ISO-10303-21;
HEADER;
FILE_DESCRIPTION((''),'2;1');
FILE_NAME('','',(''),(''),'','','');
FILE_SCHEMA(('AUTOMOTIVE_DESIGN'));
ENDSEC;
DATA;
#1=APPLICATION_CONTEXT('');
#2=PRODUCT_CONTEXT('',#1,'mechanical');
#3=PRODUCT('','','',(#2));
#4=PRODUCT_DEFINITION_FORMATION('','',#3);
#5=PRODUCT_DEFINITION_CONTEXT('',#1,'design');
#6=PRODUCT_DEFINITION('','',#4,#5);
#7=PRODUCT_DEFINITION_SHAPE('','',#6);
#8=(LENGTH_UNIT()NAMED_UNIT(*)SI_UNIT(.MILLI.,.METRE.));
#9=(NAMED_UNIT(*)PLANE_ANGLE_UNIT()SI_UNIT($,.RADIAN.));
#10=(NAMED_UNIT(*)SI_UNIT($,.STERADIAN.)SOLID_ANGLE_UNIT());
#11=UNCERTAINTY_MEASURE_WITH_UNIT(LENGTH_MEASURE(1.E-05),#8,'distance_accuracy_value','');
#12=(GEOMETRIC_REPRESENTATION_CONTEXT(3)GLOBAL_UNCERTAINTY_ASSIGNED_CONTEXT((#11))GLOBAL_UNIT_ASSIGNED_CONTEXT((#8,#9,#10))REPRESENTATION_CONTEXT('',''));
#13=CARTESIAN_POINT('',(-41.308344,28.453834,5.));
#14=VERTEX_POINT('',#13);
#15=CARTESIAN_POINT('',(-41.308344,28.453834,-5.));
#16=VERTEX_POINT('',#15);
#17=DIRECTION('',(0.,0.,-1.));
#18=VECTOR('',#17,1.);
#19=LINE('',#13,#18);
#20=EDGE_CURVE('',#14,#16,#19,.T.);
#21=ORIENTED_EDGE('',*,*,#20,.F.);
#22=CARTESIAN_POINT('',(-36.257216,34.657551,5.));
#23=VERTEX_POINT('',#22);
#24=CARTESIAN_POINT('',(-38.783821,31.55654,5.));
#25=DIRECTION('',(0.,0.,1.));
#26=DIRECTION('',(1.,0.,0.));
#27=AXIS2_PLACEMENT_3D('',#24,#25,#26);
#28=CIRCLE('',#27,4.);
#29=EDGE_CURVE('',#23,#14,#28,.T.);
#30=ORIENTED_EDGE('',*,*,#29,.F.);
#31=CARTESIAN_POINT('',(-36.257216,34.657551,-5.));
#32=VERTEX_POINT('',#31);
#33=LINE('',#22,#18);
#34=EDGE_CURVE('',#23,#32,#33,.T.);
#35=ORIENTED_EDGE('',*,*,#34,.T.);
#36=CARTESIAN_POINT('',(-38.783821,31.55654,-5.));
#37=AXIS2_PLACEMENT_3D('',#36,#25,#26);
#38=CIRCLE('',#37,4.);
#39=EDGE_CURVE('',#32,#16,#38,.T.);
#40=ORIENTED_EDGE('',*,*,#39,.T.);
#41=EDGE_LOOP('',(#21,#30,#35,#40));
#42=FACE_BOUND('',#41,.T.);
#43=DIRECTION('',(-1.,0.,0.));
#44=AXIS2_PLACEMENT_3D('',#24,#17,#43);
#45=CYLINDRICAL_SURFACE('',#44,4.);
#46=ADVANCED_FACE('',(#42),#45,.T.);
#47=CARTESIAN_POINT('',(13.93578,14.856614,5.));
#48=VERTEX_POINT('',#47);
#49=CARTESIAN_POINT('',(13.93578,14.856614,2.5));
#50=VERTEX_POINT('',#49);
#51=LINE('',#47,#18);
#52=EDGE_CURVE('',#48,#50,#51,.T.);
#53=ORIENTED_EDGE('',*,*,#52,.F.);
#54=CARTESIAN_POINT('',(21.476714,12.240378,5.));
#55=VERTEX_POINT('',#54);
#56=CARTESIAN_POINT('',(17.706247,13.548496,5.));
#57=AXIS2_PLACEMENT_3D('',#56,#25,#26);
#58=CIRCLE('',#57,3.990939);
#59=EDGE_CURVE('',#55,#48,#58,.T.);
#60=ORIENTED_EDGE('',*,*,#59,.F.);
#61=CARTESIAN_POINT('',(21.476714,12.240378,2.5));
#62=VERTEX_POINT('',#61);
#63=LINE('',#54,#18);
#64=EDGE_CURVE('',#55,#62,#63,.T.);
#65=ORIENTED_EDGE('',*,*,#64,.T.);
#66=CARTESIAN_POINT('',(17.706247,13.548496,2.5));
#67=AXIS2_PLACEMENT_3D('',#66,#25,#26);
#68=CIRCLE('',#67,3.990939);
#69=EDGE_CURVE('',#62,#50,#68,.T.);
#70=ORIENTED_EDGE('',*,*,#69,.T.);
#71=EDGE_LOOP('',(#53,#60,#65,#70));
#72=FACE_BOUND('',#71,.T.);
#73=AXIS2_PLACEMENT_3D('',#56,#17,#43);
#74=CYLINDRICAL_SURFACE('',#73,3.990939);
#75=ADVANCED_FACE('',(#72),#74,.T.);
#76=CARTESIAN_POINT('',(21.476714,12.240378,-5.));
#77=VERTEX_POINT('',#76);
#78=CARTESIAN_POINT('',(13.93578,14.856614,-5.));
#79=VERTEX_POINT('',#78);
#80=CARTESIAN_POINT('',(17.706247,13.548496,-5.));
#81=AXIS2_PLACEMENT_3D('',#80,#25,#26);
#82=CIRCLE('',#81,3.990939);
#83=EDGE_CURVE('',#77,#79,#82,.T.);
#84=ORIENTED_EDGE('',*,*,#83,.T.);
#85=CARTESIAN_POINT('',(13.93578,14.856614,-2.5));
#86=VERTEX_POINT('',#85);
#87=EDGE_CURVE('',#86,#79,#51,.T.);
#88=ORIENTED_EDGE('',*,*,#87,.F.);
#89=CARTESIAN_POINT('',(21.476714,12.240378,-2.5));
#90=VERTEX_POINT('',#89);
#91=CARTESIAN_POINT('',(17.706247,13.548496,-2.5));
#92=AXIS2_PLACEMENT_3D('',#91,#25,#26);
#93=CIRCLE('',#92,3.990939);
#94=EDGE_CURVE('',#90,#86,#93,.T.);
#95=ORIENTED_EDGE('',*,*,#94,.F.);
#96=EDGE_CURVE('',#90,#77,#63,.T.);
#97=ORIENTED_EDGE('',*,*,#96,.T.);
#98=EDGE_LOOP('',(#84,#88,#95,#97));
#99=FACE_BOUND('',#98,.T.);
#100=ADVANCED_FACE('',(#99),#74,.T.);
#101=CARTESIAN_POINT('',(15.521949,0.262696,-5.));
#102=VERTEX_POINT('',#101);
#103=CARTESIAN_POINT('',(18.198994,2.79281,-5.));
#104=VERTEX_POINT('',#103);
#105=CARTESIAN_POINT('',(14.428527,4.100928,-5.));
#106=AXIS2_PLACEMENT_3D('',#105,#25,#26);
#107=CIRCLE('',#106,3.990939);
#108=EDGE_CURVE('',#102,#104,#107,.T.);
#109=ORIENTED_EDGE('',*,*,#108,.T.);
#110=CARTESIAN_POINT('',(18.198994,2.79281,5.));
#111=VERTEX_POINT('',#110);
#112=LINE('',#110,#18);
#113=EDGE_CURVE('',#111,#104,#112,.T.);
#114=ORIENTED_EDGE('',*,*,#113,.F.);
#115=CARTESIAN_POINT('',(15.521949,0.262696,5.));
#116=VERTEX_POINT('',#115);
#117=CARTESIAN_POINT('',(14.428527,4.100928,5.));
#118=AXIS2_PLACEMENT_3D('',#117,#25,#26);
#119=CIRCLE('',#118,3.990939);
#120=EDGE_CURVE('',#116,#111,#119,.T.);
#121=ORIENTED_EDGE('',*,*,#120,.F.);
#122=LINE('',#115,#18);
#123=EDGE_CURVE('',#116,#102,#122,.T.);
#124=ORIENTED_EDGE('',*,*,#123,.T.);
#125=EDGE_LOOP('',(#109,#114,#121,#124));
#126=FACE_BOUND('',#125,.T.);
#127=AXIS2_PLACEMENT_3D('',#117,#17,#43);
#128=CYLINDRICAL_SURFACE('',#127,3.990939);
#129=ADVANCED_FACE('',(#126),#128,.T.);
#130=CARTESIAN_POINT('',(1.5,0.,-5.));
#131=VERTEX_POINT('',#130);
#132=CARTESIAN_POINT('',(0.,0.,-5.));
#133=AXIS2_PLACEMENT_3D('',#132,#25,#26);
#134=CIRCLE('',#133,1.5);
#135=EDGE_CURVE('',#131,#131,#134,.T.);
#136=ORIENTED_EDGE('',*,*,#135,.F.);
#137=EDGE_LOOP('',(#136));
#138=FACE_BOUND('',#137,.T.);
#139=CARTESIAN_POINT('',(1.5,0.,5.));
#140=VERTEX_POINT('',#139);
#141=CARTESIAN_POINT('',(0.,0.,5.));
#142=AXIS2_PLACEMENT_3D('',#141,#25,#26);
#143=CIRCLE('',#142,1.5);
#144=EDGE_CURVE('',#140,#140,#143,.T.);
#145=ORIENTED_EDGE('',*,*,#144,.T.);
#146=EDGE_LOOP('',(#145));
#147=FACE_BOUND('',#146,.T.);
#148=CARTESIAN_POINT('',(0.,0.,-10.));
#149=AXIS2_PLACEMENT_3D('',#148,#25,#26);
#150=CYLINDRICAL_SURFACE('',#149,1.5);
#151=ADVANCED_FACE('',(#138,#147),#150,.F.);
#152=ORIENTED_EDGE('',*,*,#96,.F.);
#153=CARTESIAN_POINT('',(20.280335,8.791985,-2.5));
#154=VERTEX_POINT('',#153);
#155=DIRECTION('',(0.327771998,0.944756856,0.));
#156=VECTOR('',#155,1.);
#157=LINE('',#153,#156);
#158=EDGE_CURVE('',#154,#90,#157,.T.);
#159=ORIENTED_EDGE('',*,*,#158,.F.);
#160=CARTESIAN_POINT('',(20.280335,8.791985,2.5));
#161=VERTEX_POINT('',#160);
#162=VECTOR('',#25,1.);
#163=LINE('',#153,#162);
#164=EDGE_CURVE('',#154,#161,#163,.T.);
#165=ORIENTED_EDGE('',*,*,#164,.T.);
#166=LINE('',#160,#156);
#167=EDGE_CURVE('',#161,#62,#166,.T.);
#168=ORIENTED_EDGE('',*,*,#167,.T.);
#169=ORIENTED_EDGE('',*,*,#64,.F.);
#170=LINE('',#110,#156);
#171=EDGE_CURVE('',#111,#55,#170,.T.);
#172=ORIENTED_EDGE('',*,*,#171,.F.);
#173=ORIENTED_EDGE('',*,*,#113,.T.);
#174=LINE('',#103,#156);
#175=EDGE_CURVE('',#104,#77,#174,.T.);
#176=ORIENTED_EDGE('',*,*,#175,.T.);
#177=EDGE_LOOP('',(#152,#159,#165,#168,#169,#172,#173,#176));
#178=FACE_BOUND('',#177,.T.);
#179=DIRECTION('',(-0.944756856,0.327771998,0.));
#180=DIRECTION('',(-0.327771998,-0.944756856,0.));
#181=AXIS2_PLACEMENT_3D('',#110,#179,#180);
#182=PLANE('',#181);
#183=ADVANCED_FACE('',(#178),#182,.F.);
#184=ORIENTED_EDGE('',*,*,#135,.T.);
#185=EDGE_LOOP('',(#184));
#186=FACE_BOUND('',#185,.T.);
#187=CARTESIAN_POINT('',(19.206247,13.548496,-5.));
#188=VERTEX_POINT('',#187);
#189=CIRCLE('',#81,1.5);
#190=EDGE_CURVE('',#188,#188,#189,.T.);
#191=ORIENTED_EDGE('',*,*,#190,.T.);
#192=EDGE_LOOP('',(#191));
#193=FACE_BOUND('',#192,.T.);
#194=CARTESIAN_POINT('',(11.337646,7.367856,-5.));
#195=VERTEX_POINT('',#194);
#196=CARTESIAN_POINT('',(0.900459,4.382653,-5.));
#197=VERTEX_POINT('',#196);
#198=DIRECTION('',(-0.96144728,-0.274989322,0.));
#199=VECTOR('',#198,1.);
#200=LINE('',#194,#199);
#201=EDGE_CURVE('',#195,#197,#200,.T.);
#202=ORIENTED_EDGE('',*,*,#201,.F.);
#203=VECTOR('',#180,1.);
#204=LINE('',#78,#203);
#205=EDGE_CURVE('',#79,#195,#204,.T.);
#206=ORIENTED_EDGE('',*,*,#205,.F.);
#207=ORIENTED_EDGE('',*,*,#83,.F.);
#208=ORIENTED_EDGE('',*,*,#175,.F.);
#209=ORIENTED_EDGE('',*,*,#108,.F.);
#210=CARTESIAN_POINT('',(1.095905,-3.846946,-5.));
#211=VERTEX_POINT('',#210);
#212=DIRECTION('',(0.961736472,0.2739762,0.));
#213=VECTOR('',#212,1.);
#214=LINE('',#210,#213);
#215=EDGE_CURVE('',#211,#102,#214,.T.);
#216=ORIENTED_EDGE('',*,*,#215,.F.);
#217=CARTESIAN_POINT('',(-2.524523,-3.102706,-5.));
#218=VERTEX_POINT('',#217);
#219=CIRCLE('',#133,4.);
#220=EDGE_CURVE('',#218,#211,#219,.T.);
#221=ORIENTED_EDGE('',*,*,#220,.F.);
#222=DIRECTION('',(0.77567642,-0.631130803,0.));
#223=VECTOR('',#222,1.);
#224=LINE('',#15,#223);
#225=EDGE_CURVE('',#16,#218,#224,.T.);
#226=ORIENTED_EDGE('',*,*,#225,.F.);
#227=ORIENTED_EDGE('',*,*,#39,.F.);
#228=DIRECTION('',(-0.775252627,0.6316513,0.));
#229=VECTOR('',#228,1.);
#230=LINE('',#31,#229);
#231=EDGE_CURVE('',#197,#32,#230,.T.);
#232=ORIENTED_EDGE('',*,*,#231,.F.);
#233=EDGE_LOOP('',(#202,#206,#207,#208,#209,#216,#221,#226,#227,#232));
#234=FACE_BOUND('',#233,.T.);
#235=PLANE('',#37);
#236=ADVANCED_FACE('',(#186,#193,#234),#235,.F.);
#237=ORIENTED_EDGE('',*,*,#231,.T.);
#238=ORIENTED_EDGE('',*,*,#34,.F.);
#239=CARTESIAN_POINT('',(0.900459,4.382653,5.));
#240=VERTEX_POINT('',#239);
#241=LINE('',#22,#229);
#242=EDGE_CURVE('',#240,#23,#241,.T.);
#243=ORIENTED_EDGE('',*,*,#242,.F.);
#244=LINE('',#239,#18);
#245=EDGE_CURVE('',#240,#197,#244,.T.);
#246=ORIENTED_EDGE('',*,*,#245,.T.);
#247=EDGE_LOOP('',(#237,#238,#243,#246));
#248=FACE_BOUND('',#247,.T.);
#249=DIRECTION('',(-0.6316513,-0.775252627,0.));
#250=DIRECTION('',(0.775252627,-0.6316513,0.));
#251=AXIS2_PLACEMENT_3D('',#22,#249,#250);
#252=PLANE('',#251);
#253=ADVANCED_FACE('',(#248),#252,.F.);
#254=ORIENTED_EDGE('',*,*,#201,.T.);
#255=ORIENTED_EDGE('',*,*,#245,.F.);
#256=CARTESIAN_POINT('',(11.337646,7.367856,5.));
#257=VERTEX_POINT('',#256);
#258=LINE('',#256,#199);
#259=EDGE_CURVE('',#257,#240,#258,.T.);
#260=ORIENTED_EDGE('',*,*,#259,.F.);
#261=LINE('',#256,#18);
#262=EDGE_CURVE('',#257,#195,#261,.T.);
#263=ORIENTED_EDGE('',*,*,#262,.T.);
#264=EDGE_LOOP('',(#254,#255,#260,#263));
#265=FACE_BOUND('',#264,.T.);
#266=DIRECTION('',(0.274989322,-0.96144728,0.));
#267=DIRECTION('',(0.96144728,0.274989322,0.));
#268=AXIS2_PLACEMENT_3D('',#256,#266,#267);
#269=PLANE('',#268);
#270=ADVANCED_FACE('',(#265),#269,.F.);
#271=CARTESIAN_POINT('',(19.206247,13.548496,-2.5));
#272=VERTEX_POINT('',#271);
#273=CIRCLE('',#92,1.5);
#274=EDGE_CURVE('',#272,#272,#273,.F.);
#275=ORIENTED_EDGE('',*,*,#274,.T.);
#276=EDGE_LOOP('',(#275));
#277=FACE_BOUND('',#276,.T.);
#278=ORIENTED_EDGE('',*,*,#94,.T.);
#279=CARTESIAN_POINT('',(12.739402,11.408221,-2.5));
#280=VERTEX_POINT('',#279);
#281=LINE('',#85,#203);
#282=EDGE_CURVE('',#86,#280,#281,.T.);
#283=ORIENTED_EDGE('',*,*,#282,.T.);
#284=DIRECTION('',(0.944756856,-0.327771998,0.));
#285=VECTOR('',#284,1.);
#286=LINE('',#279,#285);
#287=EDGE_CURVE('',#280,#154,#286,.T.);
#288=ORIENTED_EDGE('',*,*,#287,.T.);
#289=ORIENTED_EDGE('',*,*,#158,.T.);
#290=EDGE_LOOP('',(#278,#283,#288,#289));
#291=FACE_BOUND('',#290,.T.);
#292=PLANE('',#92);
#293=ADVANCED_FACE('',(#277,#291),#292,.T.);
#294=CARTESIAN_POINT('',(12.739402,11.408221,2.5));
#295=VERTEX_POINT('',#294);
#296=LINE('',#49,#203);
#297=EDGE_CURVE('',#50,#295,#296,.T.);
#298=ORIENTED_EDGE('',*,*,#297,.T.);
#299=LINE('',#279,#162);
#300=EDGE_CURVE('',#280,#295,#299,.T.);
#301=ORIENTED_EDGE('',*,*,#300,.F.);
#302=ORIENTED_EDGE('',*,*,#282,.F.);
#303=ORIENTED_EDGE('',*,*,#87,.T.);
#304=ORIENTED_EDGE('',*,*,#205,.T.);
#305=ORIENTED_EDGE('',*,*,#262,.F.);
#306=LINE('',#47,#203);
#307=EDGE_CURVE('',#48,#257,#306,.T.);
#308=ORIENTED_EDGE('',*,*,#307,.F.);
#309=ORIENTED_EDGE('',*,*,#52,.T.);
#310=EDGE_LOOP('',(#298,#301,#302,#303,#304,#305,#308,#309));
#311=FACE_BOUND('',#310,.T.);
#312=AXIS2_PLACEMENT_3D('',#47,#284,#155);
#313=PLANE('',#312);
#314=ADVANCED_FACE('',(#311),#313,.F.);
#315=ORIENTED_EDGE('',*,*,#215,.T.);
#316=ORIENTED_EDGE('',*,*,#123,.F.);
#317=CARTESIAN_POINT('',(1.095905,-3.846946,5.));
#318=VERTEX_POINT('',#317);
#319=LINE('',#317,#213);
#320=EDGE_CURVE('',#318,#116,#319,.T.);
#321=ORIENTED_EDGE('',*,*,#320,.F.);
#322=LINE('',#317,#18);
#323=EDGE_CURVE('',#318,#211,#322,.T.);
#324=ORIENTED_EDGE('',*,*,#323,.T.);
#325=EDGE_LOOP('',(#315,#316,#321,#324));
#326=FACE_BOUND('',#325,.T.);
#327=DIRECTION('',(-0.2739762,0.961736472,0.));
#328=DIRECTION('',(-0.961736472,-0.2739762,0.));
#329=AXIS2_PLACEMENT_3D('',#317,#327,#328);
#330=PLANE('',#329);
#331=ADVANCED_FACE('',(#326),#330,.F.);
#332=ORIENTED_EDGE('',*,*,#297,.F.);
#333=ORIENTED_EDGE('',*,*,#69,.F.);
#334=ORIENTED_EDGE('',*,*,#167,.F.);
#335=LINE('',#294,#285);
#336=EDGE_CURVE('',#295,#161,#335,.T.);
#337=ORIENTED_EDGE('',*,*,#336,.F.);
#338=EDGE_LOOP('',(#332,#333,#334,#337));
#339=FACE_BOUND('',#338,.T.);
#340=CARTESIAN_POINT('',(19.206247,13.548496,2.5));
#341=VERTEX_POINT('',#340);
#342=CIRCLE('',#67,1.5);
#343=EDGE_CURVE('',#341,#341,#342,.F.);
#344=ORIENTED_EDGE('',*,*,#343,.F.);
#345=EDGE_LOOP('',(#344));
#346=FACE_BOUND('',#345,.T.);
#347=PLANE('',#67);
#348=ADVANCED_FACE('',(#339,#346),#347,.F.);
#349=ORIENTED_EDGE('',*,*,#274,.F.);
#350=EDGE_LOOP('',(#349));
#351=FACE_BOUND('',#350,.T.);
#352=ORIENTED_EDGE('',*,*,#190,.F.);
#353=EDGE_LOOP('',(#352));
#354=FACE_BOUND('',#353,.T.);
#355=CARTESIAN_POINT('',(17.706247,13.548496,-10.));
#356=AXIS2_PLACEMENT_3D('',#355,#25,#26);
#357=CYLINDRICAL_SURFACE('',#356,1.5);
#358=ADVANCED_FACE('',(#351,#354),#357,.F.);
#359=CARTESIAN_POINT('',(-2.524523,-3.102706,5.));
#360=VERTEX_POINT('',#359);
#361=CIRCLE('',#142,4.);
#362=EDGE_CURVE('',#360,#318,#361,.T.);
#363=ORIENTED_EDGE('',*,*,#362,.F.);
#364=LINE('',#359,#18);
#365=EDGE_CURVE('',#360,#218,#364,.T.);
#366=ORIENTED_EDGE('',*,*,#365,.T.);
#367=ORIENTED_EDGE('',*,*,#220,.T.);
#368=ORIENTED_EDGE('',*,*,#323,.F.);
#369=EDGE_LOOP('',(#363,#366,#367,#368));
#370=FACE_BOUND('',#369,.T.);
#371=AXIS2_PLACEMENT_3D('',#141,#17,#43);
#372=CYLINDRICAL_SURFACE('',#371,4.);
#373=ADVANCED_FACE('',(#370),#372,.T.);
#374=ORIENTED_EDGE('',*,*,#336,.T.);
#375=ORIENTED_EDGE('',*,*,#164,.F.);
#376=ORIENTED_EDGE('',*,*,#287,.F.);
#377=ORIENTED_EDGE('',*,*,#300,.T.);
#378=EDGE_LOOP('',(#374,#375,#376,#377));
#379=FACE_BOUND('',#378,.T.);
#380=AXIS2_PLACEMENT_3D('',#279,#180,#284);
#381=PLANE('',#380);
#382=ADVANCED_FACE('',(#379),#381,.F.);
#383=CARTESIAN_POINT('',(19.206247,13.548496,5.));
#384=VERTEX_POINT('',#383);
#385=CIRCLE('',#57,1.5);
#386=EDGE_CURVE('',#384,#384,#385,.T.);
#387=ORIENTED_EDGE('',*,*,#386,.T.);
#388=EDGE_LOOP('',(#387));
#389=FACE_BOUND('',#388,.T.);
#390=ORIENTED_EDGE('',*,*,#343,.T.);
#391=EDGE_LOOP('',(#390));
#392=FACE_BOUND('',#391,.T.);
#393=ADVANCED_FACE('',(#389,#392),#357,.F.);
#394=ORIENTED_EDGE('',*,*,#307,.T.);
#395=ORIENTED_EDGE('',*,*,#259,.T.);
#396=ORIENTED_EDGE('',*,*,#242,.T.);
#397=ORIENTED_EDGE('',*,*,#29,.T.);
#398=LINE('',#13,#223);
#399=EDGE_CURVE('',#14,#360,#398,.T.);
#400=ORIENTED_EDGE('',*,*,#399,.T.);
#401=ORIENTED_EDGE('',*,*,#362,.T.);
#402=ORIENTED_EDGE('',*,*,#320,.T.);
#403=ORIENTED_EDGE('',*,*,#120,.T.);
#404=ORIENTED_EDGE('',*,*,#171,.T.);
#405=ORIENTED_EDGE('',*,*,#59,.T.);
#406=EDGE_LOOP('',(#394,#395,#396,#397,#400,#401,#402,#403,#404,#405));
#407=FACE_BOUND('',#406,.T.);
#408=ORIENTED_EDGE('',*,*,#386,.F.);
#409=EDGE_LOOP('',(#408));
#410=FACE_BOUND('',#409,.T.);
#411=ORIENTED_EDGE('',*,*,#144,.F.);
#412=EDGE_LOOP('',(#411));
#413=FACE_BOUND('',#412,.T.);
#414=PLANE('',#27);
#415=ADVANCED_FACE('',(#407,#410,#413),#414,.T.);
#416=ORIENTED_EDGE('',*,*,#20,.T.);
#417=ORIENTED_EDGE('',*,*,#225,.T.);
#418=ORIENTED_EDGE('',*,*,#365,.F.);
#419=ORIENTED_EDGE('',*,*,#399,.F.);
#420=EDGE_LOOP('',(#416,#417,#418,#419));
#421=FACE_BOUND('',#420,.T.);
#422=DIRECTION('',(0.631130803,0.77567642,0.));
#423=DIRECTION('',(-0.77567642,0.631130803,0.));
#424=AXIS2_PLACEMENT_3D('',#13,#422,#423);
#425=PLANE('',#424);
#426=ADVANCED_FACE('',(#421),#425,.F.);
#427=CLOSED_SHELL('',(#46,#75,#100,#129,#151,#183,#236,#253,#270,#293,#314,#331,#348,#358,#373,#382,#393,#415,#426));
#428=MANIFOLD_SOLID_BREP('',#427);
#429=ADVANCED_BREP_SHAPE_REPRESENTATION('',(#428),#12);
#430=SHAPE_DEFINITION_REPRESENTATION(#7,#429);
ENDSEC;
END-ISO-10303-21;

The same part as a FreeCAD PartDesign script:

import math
import FreeCAD as App
import Part
import Sketcher
from FreeCAD import Vector
Q = App.Units.Quantity

doc = App.newDocument("Part")
params = doc.addObject("Spreadsheet::Sheet", "Params")
for row, (alias, value) in enumerate([
    ("sketch1_radius", "4 mm"),
    ("sketch1_length", "50 mm"),
    ("sketch1_length2", "10 mm"),
    ("pad1_length", "10 mm"),
    ("sketch2_diameter", "3 mm"),
    ("pocket1_length", "15 mm"),
    ("pocket2_length", "5 mm"),
], start=1):
    params.set(f"A{row}", alias)
    params.set(f"B{row}", "=" + value)
    params.setAlias(f"B{row}", alias)

body = doc.addObject("PartDesign::Body", "Body")

sketch1 = body.newObject("Sketcher::SketchObject", "Sketch")
sketch1.AttachmentSupport = (doc.getObject("XY_Plane"), [""])
sketch1.MapMode = "FlatFace"
sketch1.addGeometry(Part.LineSegment(Vector(-41.308344, 28.453834, 0), Vector(-2.524523, -3.102706, 0)), False)
sketch1.addGeometry(Part.ArcOfCircle(Part.Circle(Vector(0, 0, 0), Vector(0, 0, 1), 4), math.radians(-129.133601), math.radians(-74.098988)), False)
sketch1.addGeometry(Part.LineSegment(Vector(1.095905, -3.846946, 0), Vector(15.521949, 0.262696, 0)), False)
sketch1.addGeometry(Part.ArcOfCircle(Part.Circle(Vector(14.428527, 4.100928, 0), Vector(0, 0, 1), 3.990939), math.radians(-74.098988), math.radians(-19.133601)), False)
sketch1.addGeometry(Part.LineSegment(Vector(18.198994, 2.79281, 0), Vector(21.476714, 12.240378, 0)), False)
sketch1.addGeometry(Part.ArcOfCircle(Part.Circle(Vector(17.706247, 13.548496, 0), Vector(0, 0, 1), 3.990939), math.radians(-19.133601), math.radians(160.866399)), False)
sketch1.addGeometry(Part.LineSegment(Vector(13.93578, 14.856614, 0), Vector(11.337646, 7.367856, 0)), False)
sketch1.addGeometry(Part.LineSegment(Vector(11.337646, 7.367856, 0), Vector(0.900459, 4.382653, 0)), False)
sketch1.addGeometry(Part.LineSegment(Vector(0.900459, 4.382653, 0), Vector(-36.257216, 34.657551, 0)), False)
sketch1.addGeometry(Part.ArcOfCircle(Part.Circle(Vector(-38.783821, 31.55654, 0), Vector(0, 0, 1), 4), math.radians(50.827942), math.radians(230.866399)), False)
sketch1.addConstraint(Sketcher.Constraint("Tangent", 0, 2, 1, 1))
sketch1.addConstraint(Sketcher.Constraint("Tangent", 1, 2, 2, 1))
sketch1.addConstraint(Sketcher.Constraint("Tangent", 2, 2, 3, 1))
sketch1.addConstraint(Sketcher.Constraint("Tangent", 3, 2, 4, 1))
sketch1.addConstraint(Sketcher.Constraint("Tangent", 4, 2, 5, 1))
sketch1.addConstraint(Sketcher.Constraint("Tangent", 5, 2, 6, 1))
sketch1.addConstraint(Sketcher.Constraint("Coincident", 6, 2, 7, 1))
sketch1.addConstraint(Sketcher.Constraint("Coincident", 7, 2, 8, 1))
sketch1.addConstraint(Sketcher.Constraint("Tangent", 8, 2, 9, 1))
sketch1.addConstraint(Sketcher.Constraint("Tangent", 9, 2, 0, 1))
sketch1.addConstraint(Sketcher.Constraint("Coincident", 1, 3, -1, 1))
sketch1.addConstraint(Sketcher.Constraint("Equal", 3, 5))
sketch1.addConstraint(Sketcher.Constraint("Equal", 1, 9))
sketch1.addConstraint(Sketcher.Constraint("Parallel", 4, 6))
sketch1.addConstraint(Sketcher.Constraint("Radius", 1, Q("4 mm")))
sketch1.addConstraint(Sketcher.Constraint("Distance", 0, Q("50 mm")))
sketch1.addConstraint(Sketcher.Constraint("Distance", 4, Q("10 mm")))
sketch1.addConstraint(Sketcher.Constraint("Radius", 3, Q("3.990939 mm")))
sketch1.addConstraint(Sketcher.Constraint("DistanceY", 0, 2, 5, 3, Q("16.651202 mm")))
sketch1.addConstraint(Sketcher.Constraint("DistanceY", 2, 2, 5, 3, Q("13.2858 mm")))
sketch1.addConstraint(Sketcher.Constraint("DistanceX", 6, 2, 5, 3, Q("6.368601 mm")))
sketch1.addConstraint(Sketcher.Constraint("DistanceY", 1, 2, 7, 2, Q("8.229599 mm")))
sketch1.addConstraint(Sketcher.Constraint("Distance", 6, Q("7.926651 mm")))
sketch1.addConstraint(Sketcher.Constraint("DistanceX", 9, 3, -1, 1, Q("38.783821 mm")))
sketch1.addConstraint(Sketcher.Constraint("DistanceX", -1, 1, 7, 2, Q("0.900459 mm")))
sketch1.setExpression("Constraints[14]", "Params.sketch1_radius")
sketch1.setExpression("Constraints[15]", "Params.sketch1_length")
sketch1.setExpression("Constraints[16]", "Params.sketch1_length2")
pad1 = body.newObject("PartDesign::Pad", "Pad")
pad1.Profile = sketch1
pad1.setExpression("Length", "Params.pad1_length")
pad1.Midplane = True

sketch2 = body.newObject("Sketcher::SketchObject", "Sketch001")
sketch2.AttachmentSupport = (doc.getObject("XY_Plane"), [""])
sketch2.MapMode = "FlatFace"
sketch2.AttachmentOffset = App.Placement(Vector(0, 0, 5), App.Rotation())
sketch2.addGeometry(Part.Circle(Vector(17.706247, 13.548496, 0), Vector(0, 0, 1), 1.5), False)
sketch2.addGeometry(Part.Circle(Vector(0, 0, 0), Vector(0, 0, 1), 1.5), False)
sketch2.addConstraint(Sketcher.Constraint("Coincident", 1, 3, -1, 1))
sketch2.addConstraint(Sketcher.Constraint("Equal", 0, 1))
sketch2.addConstraint(Sketcher.Constraint("Diameter", 0, Q("3 mm")))
sketch2.addConstraint(Sketcher.Constraint("DistanceX", -1, 1, 0, 3, Q("17.706247 mm")))
sketch2.addConstraint(Sketcher.Constraint("DistanceY", -1, 1, 0, 3, Q("13.548496 mm")))
sketch2.setExpression("Constraints[2]", "Params.sketch2_diameter")
pocket1 = body.newObject("PartDesign::Pocket", "Pocket")
pocket1.Profile = sketch2
pocket1.setExpression("Length", "Params.pocket1_length")

sketch3 = body.newObject("Sketcher::SketchObject", "Sketch002")
sketch3.AttachmentSupport = (doc.getObject("XY_Plane"), [""])
sketch3.MapMode = "FlatFace"
sketch3.addGeometry(Part.LineSegment(Vector(12.739402, 11.408221, 0), Vector(20.280335, 8.791985, 0)), False)
sketch3.addGeometry(Part.LineSegment(Vector(20.280335, 8.791985, 0), Vector(21.476714, 12.240378, 0)), False)
sketch3.addGeometry(Part.ArcOfCircle(Part.Circle(Vector(17.706247, 13.548496, 0), Vector(0, 0, 1), 3.990939), math.radians(-19.133601), math.radians(160.866399)), False)
sketch3.addGeometry(Part.LineSegment(Vector(13.93578, 14.856614, 0), Vector(12.739402, 11.408221, 0)), False)
sketch3.addConstraint(Sketcher.Constraint("Coincident", 0, 2, 1, 1))
sketch3.addConstraint(Sketcher.Constraint("Tangent", 1, 2, 2, 1))
sketch3.addConstraint(Sketcher.Constraint("Tangent", 2, 2, 3, 1))
sketch3.addConstraint(Sketcher.Constraint("Coincident", 3, 2, 0, 1))
sketch3.addConstraint(Sketcher.Constraint("Perpendicular", 0, 1))
sketch3.addConstraint(Sketcher.Constraint("Parallel", 1, 3))
sketch3.addConstraint(Sketcher.Constraint("Radius", 2, Q("3.990939 mm")))
sketch3.addConstraint(Sketcher.Constraint("DistanceX", -1, 1, 3, 2, Q("12.739402 mm")))
sketch3.addConstraint(Sketcher.Constraint("DistanceY", -1, 1, 1, 2, Q("12.240378 mm")))
sketch3.addConstraint(Sketcher.Constraint("DistanceX", -1, 1, 2, 2, Q("13.93578 mm")))
sketch3.addConstraint(Sketcher.Constraint("DistanceY", -1, 1, 3, 2, Q("11.408221 mm")))
pocket2 = body.newObject("PartDesign::Pocket", "Pocket001")
pocket2.Profile = sketch3
pocket2.setExpression("Length", "Params.pocket2_length")
pocket2.Midplane = True

doc.recompute()
